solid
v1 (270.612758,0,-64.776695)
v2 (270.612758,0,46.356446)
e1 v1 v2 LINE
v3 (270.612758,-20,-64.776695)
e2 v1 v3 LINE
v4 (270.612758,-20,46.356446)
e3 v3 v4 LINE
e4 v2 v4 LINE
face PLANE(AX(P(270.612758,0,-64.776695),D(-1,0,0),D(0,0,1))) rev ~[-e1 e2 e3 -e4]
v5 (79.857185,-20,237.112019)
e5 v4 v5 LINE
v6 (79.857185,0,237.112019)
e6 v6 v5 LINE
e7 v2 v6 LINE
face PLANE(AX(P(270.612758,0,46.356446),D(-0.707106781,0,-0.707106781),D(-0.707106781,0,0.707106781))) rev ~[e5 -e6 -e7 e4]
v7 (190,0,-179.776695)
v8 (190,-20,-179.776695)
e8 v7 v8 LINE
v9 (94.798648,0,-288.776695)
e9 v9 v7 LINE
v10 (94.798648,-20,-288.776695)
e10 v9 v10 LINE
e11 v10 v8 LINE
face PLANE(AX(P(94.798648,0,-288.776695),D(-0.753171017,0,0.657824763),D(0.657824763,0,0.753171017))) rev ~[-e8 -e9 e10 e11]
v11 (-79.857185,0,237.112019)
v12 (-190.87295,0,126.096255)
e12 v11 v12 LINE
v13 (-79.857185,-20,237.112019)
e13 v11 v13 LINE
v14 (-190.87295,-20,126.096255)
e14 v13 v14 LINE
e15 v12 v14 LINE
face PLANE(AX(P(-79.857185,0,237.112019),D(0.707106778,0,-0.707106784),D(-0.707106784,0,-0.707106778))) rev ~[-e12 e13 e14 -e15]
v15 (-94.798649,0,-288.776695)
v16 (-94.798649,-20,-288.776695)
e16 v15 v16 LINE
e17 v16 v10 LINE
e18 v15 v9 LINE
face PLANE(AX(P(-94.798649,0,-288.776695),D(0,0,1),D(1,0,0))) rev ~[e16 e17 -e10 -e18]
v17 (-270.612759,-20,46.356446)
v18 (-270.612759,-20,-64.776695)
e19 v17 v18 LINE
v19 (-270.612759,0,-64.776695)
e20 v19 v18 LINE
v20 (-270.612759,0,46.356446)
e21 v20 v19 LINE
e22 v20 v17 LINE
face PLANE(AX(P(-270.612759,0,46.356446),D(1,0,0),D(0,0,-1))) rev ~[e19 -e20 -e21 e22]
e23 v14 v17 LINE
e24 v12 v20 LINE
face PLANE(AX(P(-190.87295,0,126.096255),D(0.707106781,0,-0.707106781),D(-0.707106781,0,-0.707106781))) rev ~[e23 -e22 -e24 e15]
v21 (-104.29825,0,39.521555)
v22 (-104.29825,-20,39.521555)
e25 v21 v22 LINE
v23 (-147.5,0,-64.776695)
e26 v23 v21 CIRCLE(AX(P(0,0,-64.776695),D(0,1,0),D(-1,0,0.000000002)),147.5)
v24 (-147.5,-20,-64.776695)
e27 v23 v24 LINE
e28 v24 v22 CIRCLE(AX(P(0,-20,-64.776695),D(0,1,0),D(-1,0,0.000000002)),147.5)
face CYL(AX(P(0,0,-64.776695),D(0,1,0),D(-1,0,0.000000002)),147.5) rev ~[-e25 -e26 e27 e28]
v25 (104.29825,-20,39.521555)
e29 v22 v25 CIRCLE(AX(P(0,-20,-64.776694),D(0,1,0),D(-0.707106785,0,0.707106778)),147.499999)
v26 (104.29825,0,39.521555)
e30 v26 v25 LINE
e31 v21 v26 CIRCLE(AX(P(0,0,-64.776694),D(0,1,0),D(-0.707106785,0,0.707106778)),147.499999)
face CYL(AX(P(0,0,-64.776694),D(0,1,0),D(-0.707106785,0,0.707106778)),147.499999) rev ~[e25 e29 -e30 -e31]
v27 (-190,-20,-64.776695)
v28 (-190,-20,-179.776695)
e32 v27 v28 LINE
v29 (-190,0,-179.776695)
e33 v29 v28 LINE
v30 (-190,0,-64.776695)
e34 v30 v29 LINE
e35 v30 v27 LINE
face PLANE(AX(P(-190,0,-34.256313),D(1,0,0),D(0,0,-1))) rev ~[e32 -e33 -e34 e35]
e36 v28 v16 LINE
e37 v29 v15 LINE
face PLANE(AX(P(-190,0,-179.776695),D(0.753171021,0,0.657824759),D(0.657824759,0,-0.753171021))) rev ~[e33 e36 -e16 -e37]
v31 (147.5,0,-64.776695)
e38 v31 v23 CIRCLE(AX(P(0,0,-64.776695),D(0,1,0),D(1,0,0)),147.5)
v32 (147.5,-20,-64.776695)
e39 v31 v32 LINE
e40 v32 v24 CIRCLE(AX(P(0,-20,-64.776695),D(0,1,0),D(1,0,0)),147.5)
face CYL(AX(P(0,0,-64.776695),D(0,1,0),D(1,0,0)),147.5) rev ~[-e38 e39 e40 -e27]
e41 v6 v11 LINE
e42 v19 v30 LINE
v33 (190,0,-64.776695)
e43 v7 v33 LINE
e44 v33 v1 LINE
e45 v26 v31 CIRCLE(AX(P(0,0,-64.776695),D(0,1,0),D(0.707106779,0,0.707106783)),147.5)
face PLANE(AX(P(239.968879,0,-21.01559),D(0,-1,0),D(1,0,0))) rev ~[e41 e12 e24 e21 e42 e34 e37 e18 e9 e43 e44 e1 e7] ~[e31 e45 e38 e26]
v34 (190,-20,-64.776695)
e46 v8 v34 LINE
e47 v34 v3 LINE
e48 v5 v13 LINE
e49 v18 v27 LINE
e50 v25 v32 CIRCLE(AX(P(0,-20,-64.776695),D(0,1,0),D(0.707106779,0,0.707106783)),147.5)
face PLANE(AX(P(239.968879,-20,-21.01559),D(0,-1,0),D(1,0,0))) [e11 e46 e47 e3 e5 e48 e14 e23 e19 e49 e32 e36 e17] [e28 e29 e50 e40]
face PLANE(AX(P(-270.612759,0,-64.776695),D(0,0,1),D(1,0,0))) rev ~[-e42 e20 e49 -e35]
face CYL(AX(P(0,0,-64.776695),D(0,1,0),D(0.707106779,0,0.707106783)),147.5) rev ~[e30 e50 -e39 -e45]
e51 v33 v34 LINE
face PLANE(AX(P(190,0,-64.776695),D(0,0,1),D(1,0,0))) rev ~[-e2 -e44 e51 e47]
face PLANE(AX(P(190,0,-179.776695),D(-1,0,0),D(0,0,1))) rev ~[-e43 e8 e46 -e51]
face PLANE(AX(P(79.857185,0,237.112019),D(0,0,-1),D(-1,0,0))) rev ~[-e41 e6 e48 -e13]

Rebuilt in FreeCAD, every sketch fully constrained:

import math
import FreeCAD as App
import Part
import Sketcher
from FreeCAD import Vector
Q = App.Units.Quantity

doc = App.newDocument("Part")
params = doc.addObject("Spreadsheet::Sheet", "Params")
for row, (alias, value) in enumerate([
    ("sketch1_radius", "147.5 mm"),
    ("sketch1_length", "157 mm"),
    ("pad1_length", "20 mm"),
    ("pad2_length", "20 mm"),
], start=1):
    params.set(f"A{row}", alias)
    params.set(f"B{row}", "=" + value)
    params.setAlias(f"B{row}", alias)

body = doc.addObject("PartDesign::Body", "Body")

sketch1 = body.newObject("Sketcher::SketchObject", "Sketch")
sketch1.AttachmentSupport = (doc.getObject("XZ_Plane"), [""])
sketch1.MapMode = "FlatFace"
sketch1.addGeometry(Part.LineSegment(Vector(-191, 126, 0), Vector(-271, 46, 0)), False)
sketch1.addGeometry(Part.LineSegment(Vector(-271, 46, 0), Vector(-190, -34, 0)), False)
sketch1.addGeometry(Part.LineSegment(Vector(-190, -34, 0), Vector(-190, -180, 0)), False)
sketch1.addGeometry(Part.LineSegment(Vector(-190, -180, 0), Vector(-95, -289, 0)), False)
sketch1.addGeometry(Part.LineSegment(Vector(-95, -289, 0), Vector(95, -289, 0)), False)
sketch1.addGeometry(Part.LineSegment(Vector(95, -289, 0), Vector(190, -180, 0)), False)
sketch1.addGeometry(Part.LineSegment(Vector(190, -180, 0), Vector(190, -34, 0)), False)
sketch1.addGeometry(Part.LineSegment(Vector(190, -34, 0), Vector(271, 46, 0)), False)
sketch1.addGeometry(Part.LineSegment(Vector(271, 46, 0), Vector(80, 237, 0)), False)
sketch1.addGeometry(Part.LineSegment(Vector(80, 237, 0), Vector(-80, 237, 0)), False)
sketch1.addGeometry(Part.LineSegment(Vector(-80, 237, 0), Vector(-191, 126, 0)), False)
sketch1.addGeometry(Part.ArcOfCircle(Part.Circle(Vector(0, -65, 0), Vector(0, 0, 1), 147), math.radians(135), math.radians(180)), False)
sketch1.addGeometry(Part.ArcOfCircle(Part.Circle(Vector(0, -65, 0), Vector(0, 0, 1), 147), math.radians(45), math.radians(135)), False)
sketch1.addGeometry(Part.ArcOfCircle(Part.Circle(Vector(0, -65, 0), Vector(0, 0, 1), 147), math.radians(0), math.radians(45)), False)
sketch1.addGeometry(Part.ArcOfCircle(Part.Circle(Vector(0, -65, 0), Vector(0, 0, 1), 148), math.radians(180), math.radians(360)), False)
sketch1.addConstraint(Sketcher.Constraint("Coincident", 0, 2, 1, 1))
sketch1.addConstraint(Sketcher.Constraint("Coincident", 1, 2, 2, 1))
sketch1.addConstraint(Sketcher.Constraint("Coincident", 2, 2, 3, 1))
sketch1.addConstraint(Sketcher.Constraint("Coincident", 3, 2, 4, 1))
sketch1.addConstraint(Sketcher.Constraint("Coincident", 4, 2, 5, 1))
sketch1.addConstraint(Sketcher.Constraint("Coincident", 5, 2, 6, 1))
sketch1.addConstraint(Sketcher.Constraint("Coincident", 6, 2, 7, 1))
sketch1.addConstraint(Sketcher.Constraint("Coincident", 7, 2, 8, 1))
sketch1.addConstraint(Sketcher.Constraint("Coincident", 8, 2, 9, 1))
sketch1.addConstraint(Sketcher.Constraint("Coincident", 9, 2, 10, 1))
sketch1.addConstraint(Sketcher.Constraint("Coincident", 10, 2, 0, 1))
sketch1.addConstraint(Sketcher.Constraint("Tangent", 11, 1, 12, 2))
sketch1.addConstraint(Sketcher.Constraint("Tangent", 12, 1, 13, 2))
sketch1.addConstraint(Sketcher.Constraint("Tangent", 13, 1, 14, 2))
sketch1.addConstraint(Sketcher.Constraint("Tangent", 14, 1, 11, 2))
sketch1.addConstraint(Sketcher.Constraint("Vertical", 2))
sketch1.addConstraint(Sketcher.Constraint("Horizontal", 4))
sketch1.addConstraint(Sketcher.Constraint("Vertical", 6))
sketch1.addConstraint(Sketcher.Constraint("Horizontal", 9))
sketch1.addConstraint(Sketcher.Constraint("Equal", 11, 12))
sketch1.addConstraint(Sketcher.Constraint("Symmetric", 2, 2, 5, 2, -2))
sketch1.addConstraint(Sketcher.Constraint("Symmetric", 0, 2, 7, 2, -2))
sketch1.addConstraint(Sketcher.Constraint("Symmetric", 11, 1, 12, 1, -2))
sketch1.addConstraint(Sketcher.Constraint("Perpendicular", 0, 1))
sketch1.addConstraint(Sketcher.Constraint("Perpendicular", 1, 7))
sketch1.addConstraint(Sketcher.Constraint("Perpendicular", 7, 8))
sketch1.addConstraint(Sketcher.Constraint("Perpendicular", 8, 10))
sketch1.addConstraint(Sketcher.Constraint("Horizontal", 1, 2, 6, 2))
sketch1.addConstraint(Sketcher.Constraint("Horizontal", 14, 3, 13, 1))
sketch1.addConstraint(Sketcher.Constraint("Horizontal", 13, 1, 14, 1))
sketch1.addConstraint(Sketcher.Constraint("Equal", 3, 5))
sketch1.addConstraint(Sketcher.Constraint("Radius", 11, Q("147.5 mm")))
sketch1.addConstraint(Sketcher.Constraint("Distance", 10, Q("157 mm")))
sketch1.addConstraint(Sketcher.Constraint("DistanceX", 1, 2, -1, 1, Q("190 mm")))
sketch1.addConstraint(Sketcher.Constraint("DistanceY", 2, 2, 11, 3, Q("115 mm")))
sketch1.addConstraint(Sketcher.Constraint("DistanceY", 3, 2, 2, 2, Q("109 mm")))
sketch1.addConstraint(Sketcher.Constraint("DistanceX", 9, 2, 9, 1, Q("159.71437 mm")))
sketch1.addConstraint(Sketcher.Constraint("DistanceY", 2, 2, 2, 1, Q("145.520382 mm")))
sketch1.addConstraint(Sketcher.Constraint("DistanceX", 10, 2, 11, 1, Q("86.5747 mm")))
sketch1.addConstraint(Sketcher.Constraint("DistanceY", 11, 1, 10, 2, Q("86.5747 mm")))
sketch1.addConstraint(Sketcher.Constraint("DistanceX", 4, 1, 4, 2, Q("189.597297 mm")))
sketch1.addConstraint(Sketcher.Constraint("DistanceY", -1, 1, 8, 2, Q("237.112019 mm")))
sketch1.setExpression("Constraints[31]", "Params.sketch1_radius")
sketch1.setExpression("Constraints[32]", "Params.sketch1_length")
pad1 = body.newObject("PartDesign::Pad", "Pad")
pad1.Profile = sketch1
pad1.setExpression("Length", "Params.pad1_length")

sketch2 = body.newObject("Sketcher::SketchObject", "Sketch001")
sketch2.AttachmentSupport = (doc.getObject("XZ_Plane"), [""])
sketch2.MapMode = "FlatFace"
sketch2.addGeometry(Part.LineSegment(Vector(190, -34, 0), Vector(190, -65, 0)), False)
sketch2.addGeometry(Part.LineSegment(Vector(190, -65, 0), Vector(271, -65, 0)), False)
sketch2.addGeometry(Part.LineSegment(Vector(271, -65, 0), Vector(271, 46, 0)), False)
sketch2.addGeometry(Part.LineSegment(Vector(271, 46, 0), Vector(190, -34, 0)), False)
sketch2.addGeometry(Part.LineSegment(Vector(-190, -65, 0), Vector(-190, -34, 0)), False)
sketch2.addGeometry(Part.LineSegment(Vector(-190, -34, 0), Vector(-271, 46, 0)), False)
sketch2.addGeometry(Part.LineSegment(Vector(-271, 46, 0), Vector(-271, -65, 0)), False)
sketch2.addGeometry(Part.LineSegment(Vector(-271, -65, 0), Vector(-190, -65, 0)), False)
sketch2.addConstraint(Sketcher.Constraint("Coincident", 0, 2, 1, 1))
sketch2.addConstraint(Sketcher.Constraint("Coincident", 1, 2, 2, 1))
sketch2.addConstraint(Sketcher.Constraint("Coincident", 2, 2, 3, 1))
sketch2.addConstraint(Sketcher.Constraint("Coincident", 3, 2, 0, 1))
sketch2.addConstraint(Sketcher.Constraint("Coincident", 4, 2, 5, 1))
sketch2.addConstraint(Sketcher.Constraint("Coincident", 5, 2, 6, 1))
sketch2.addConstraint(Sketcher.Constraint("Coincident", 6, 2, 7, 1))
sketch2.addConstraint(Sketcher.Constraint("Coincident", 7, 2, 4, 1))
sketch2.addConstraint(Sketcher.Constraint("Vertical", 0))
sketch2.addConstraint(Sketcher.Constraint("Horizontal", 1))
sketch2.addConstraint(Sketcher.Constraint("Vertical", 2))
sketch2.addConstraint(Sketcher.Constraint("Vertical", 4))
sketch2.addConstraint(Sketcher.Constraint("Vertical", 6))
sketch2.addConstraint(Sketcher.Constraint("Horizontal", 7))
sketch2.addConstraint(Sketcher.Constraint("Symmetric", 3, 2, 4, 2, -2))
sketch2.addConstraint(Sketcher.Constraint("Symmetric", 2, 2, 5, 2, -2))
sketch2.addConstraint(Sketcher.Constraint("Perpendicular", 3, 5))
sketch2.addConstraint(Sketcher.Constraint("Horizontal", 1, 2, 6, 2))
sketch2.addConstraint(Sketcher.Constraint("DistanceX", -1, 1, 0, 2, Q("190 mm")))
sketch2.addConstraint(Sketcher.Constraint("DistanceX", 7, 1, 7, 2, Q("80.612759 mm")))
sketch2.addConstraint(Sketcher.Constraint("DistanceY", 2, 1, 2, 2, Q("111.133141 mm")))
sketch2.addConstraint(Sketcher.Constraint("DistanceY", 0, 2, -1, 1, Q("64.776695 mm")))
pad2 = body.newObject("PartDesign::Pad", "Pad001")
pad2.Profile = sketch2
pad2.setExpression("Length", "Params.pad2_length")

doc.recompute()
